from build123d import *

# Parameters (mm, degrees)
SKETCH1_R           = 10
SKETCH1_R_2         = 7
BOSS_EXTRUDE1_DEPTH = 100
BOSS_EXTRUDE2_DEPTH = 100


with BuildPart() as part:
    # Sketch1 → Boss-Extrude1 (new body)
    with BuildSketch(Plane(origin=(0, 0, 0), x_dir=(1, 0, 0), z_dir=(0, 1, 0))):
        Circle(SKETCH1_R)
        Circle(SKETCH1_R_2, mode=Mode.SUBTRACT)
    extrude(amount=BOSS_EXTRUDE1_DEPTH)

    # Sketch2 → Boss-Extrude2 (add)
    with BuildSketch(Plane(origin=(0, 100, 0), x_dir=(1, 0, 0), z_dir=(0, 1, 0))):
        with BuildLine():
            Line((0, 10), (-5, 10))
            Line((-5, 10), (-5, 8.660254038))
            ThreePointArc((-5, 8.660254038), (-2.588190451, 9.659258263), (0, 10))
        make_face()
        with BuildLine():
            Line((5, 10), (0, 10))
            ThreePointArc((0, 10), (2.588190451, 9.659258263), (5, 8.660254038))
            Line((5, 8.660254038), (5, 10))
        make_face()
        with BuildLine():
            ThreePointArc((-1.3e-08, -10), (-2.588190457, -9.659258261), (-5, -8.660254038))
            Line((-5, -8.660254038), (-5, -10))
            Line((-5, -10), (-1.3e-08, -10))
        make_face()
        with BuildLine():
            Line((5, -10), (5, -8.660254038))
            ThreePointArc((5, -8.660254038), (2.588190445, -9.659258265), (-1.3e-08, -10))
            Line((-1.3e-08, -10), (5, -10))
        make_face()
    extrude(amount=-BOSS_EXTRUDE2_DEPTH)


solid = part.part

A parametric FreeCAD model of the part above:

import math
import FreeCAD as App
import Part
import Sketcher

V = App.Vector

doc = App.newDocument("Part")
body = doc.addObject("PartDesign::Body", "Body")

# Sketch on XZ plane
sketch1 = doc.addObject("Sketcher::SketchObject", "Sketch")
body.addObject(sketch1)
sketch1.AttachmentSupport = (doc.XZ_Plane, [""])
sketch1.MapMode = "FlatFace"
sketch1.addGeometry([
    Part.Circle(V(0, 0, 0), V(0, 0, 1), 10),
    Part.Circle(V(0, 0, 0), V(0, 0, 1), 7),
], False)
sketch1.addConstraint([
    Sketcher.Constraint("Coincident", 0, 3, -1, 1),
    Sketcher.Constraint("Coincident", 1, 3, -1, 1),
    Sketcher.Constraint("Diameter", 0, 20.0),
    Sketcher.Constraint("Diameter", 1, 14.0),
])
pad1 = doc.addObject("PartDesign::Pad", "Pad")
body.addObject(pad1)
pad1.Profile = sketch1
pad1.Length = 100
pad1.Reversed = True

# Sketch on XZ plane
sketch2 = doc.addObject("Sketcher::SketchObject", "Sketch001")
body.addObject(sketch2)
sketch2.AttachmentSupport = (doc.XZ_Plane, [""])
sketch2.MapMode = "FlatFace"
sketch2.AttachmentOffset = App.Placement(V(0, 0, -100), App.Rotation())
sketch2.addGeometry([
    Part.LineSegment(V(0, -10, 0), V(-5, -10, 0)),  # 0
    Part.LineSegment(V(-5, -10, 0), V(-5, -8.7, 0)),  # 1
    Part.ArcOfCircle(Part.Circle(V(0, 0, 0), V(0, 0, 1), 10), math.radians(-120), math.radians(-90)),  # 2
    Part.LineSegment(V(5, -10, 0), V(0, -10, 0)),  # 3
    Part.ArcOfCircle(Part.Circle(V(0, 0, 0), V(0, 0, 1), 10), math.radians(-90), math.radians(-60)),  # 4
    Part.LineSegment(V(5, -8.7, 0), V(5, -10, 0)),  # 5
    Part.ArcOfCircle(Part.Circle(V(0, 0, 0), V(0, 0, 1), 10), math.radians(90), math.radians(120)),  # 6
    Part.LineSegment(V(-5, 8.7, 0), V(-5, 10, 0)),  # 7
    Part.LineSegment(V(-5, 10, 0), V(0, 10, 0)),  # 8
    Part.LineSegment(V(5, 10, 0), V(5, 8.7, 0)),  # 9
    Part.ArcOfCircle(Part.Circle(V(0, 0, 0), V(0, 0, 1), 10), math.radians(60), math.radians(90)),  # 10
    Part.LineSegment(V(0, 10, 0), V(5, 10, 0)),  # 11
], False)
sketch2.addConstraint([
    Sketcher.Constraint("Coincident", 0, 2, 1, 1),
    Sketcher.Constraint("Coincident", 1, 2, 2, 1),
    Sketcher.Constraint("Tangent", 2, 2, 0, 1),
    Sketcher.Constraint("Tangent", 3, 2, 4, 1),
    Sketcher.Constraint("Coincident", 4, 2, 5, 1),
    Sketcher.Constraint("Coincident", 5, 2, 3, 1),
    Sketcher.Constraint("Coincident", 6, 2, 7, 1),
    Sketcher.Constraint("Coincident", 7, 2, 8, 1),
    Sketcher.Constraint("Tangent", 8, 2, 6, 1),
    Sketcher.Constraint("Coincident", 9, 2, 10, 1),
    Sketcher.Constraint("Tangent", 10, 2, 11, 1),
    Sketcher.Constraint("Coincident", 11, 2, 9, 1),
    Sketcher.Constraint("Horizontal", 0),
    Sketcher.Constraint("Vertical", 1),
    Sketcher.Constraint("Horizontal", 3),
    Sketcher.Constraint("Vertical", 5),
    Sketcher.Constraint("Vertical", 7),
    Sketcher.Constraint("Horizontal", 8),
    Sketcher.Constraint("Vertical", 9),
    Sketcher.Constraint("Horizontal", 11),
    Sketcher.Constraint("Coincident", 2, 3, -1, 1),
    Sketcher.Constraint("Coincident", 4, 3, -1, 1),
    Sketcher.Constraint("Coincident", 6, 3, -1, 1),
    Sketcher.Constraint("Coincident", 10, 3, -1, 1),
    Sketcher.Constraint("Equal", 2, 4),
    Sketcher.Constraint("Equal", 4, 6),
    Sketcher.Constraint("Equal", 6, 10),
    Sketcher.Constraint("Horizontal", 1, 2, 4, 2),
    Sketcher.Constraint("Horizontal", 6, 2, 9, 2),
    Sketcher.Constraint("Vertical", 1, 2, 6, 2),
    Sketcher.Constraint("Radius", 2, 10.0),
    Sketcher.Constraint("DistanceX", 0, 2, 0, 1, 5.0),
])
pad2 = doc.addObject("PartDesign::Pad", "Pad001")
body.addObject(pad2)
pad2.Profile = sketch2
pad2.Length = 100

doc.recompute()
